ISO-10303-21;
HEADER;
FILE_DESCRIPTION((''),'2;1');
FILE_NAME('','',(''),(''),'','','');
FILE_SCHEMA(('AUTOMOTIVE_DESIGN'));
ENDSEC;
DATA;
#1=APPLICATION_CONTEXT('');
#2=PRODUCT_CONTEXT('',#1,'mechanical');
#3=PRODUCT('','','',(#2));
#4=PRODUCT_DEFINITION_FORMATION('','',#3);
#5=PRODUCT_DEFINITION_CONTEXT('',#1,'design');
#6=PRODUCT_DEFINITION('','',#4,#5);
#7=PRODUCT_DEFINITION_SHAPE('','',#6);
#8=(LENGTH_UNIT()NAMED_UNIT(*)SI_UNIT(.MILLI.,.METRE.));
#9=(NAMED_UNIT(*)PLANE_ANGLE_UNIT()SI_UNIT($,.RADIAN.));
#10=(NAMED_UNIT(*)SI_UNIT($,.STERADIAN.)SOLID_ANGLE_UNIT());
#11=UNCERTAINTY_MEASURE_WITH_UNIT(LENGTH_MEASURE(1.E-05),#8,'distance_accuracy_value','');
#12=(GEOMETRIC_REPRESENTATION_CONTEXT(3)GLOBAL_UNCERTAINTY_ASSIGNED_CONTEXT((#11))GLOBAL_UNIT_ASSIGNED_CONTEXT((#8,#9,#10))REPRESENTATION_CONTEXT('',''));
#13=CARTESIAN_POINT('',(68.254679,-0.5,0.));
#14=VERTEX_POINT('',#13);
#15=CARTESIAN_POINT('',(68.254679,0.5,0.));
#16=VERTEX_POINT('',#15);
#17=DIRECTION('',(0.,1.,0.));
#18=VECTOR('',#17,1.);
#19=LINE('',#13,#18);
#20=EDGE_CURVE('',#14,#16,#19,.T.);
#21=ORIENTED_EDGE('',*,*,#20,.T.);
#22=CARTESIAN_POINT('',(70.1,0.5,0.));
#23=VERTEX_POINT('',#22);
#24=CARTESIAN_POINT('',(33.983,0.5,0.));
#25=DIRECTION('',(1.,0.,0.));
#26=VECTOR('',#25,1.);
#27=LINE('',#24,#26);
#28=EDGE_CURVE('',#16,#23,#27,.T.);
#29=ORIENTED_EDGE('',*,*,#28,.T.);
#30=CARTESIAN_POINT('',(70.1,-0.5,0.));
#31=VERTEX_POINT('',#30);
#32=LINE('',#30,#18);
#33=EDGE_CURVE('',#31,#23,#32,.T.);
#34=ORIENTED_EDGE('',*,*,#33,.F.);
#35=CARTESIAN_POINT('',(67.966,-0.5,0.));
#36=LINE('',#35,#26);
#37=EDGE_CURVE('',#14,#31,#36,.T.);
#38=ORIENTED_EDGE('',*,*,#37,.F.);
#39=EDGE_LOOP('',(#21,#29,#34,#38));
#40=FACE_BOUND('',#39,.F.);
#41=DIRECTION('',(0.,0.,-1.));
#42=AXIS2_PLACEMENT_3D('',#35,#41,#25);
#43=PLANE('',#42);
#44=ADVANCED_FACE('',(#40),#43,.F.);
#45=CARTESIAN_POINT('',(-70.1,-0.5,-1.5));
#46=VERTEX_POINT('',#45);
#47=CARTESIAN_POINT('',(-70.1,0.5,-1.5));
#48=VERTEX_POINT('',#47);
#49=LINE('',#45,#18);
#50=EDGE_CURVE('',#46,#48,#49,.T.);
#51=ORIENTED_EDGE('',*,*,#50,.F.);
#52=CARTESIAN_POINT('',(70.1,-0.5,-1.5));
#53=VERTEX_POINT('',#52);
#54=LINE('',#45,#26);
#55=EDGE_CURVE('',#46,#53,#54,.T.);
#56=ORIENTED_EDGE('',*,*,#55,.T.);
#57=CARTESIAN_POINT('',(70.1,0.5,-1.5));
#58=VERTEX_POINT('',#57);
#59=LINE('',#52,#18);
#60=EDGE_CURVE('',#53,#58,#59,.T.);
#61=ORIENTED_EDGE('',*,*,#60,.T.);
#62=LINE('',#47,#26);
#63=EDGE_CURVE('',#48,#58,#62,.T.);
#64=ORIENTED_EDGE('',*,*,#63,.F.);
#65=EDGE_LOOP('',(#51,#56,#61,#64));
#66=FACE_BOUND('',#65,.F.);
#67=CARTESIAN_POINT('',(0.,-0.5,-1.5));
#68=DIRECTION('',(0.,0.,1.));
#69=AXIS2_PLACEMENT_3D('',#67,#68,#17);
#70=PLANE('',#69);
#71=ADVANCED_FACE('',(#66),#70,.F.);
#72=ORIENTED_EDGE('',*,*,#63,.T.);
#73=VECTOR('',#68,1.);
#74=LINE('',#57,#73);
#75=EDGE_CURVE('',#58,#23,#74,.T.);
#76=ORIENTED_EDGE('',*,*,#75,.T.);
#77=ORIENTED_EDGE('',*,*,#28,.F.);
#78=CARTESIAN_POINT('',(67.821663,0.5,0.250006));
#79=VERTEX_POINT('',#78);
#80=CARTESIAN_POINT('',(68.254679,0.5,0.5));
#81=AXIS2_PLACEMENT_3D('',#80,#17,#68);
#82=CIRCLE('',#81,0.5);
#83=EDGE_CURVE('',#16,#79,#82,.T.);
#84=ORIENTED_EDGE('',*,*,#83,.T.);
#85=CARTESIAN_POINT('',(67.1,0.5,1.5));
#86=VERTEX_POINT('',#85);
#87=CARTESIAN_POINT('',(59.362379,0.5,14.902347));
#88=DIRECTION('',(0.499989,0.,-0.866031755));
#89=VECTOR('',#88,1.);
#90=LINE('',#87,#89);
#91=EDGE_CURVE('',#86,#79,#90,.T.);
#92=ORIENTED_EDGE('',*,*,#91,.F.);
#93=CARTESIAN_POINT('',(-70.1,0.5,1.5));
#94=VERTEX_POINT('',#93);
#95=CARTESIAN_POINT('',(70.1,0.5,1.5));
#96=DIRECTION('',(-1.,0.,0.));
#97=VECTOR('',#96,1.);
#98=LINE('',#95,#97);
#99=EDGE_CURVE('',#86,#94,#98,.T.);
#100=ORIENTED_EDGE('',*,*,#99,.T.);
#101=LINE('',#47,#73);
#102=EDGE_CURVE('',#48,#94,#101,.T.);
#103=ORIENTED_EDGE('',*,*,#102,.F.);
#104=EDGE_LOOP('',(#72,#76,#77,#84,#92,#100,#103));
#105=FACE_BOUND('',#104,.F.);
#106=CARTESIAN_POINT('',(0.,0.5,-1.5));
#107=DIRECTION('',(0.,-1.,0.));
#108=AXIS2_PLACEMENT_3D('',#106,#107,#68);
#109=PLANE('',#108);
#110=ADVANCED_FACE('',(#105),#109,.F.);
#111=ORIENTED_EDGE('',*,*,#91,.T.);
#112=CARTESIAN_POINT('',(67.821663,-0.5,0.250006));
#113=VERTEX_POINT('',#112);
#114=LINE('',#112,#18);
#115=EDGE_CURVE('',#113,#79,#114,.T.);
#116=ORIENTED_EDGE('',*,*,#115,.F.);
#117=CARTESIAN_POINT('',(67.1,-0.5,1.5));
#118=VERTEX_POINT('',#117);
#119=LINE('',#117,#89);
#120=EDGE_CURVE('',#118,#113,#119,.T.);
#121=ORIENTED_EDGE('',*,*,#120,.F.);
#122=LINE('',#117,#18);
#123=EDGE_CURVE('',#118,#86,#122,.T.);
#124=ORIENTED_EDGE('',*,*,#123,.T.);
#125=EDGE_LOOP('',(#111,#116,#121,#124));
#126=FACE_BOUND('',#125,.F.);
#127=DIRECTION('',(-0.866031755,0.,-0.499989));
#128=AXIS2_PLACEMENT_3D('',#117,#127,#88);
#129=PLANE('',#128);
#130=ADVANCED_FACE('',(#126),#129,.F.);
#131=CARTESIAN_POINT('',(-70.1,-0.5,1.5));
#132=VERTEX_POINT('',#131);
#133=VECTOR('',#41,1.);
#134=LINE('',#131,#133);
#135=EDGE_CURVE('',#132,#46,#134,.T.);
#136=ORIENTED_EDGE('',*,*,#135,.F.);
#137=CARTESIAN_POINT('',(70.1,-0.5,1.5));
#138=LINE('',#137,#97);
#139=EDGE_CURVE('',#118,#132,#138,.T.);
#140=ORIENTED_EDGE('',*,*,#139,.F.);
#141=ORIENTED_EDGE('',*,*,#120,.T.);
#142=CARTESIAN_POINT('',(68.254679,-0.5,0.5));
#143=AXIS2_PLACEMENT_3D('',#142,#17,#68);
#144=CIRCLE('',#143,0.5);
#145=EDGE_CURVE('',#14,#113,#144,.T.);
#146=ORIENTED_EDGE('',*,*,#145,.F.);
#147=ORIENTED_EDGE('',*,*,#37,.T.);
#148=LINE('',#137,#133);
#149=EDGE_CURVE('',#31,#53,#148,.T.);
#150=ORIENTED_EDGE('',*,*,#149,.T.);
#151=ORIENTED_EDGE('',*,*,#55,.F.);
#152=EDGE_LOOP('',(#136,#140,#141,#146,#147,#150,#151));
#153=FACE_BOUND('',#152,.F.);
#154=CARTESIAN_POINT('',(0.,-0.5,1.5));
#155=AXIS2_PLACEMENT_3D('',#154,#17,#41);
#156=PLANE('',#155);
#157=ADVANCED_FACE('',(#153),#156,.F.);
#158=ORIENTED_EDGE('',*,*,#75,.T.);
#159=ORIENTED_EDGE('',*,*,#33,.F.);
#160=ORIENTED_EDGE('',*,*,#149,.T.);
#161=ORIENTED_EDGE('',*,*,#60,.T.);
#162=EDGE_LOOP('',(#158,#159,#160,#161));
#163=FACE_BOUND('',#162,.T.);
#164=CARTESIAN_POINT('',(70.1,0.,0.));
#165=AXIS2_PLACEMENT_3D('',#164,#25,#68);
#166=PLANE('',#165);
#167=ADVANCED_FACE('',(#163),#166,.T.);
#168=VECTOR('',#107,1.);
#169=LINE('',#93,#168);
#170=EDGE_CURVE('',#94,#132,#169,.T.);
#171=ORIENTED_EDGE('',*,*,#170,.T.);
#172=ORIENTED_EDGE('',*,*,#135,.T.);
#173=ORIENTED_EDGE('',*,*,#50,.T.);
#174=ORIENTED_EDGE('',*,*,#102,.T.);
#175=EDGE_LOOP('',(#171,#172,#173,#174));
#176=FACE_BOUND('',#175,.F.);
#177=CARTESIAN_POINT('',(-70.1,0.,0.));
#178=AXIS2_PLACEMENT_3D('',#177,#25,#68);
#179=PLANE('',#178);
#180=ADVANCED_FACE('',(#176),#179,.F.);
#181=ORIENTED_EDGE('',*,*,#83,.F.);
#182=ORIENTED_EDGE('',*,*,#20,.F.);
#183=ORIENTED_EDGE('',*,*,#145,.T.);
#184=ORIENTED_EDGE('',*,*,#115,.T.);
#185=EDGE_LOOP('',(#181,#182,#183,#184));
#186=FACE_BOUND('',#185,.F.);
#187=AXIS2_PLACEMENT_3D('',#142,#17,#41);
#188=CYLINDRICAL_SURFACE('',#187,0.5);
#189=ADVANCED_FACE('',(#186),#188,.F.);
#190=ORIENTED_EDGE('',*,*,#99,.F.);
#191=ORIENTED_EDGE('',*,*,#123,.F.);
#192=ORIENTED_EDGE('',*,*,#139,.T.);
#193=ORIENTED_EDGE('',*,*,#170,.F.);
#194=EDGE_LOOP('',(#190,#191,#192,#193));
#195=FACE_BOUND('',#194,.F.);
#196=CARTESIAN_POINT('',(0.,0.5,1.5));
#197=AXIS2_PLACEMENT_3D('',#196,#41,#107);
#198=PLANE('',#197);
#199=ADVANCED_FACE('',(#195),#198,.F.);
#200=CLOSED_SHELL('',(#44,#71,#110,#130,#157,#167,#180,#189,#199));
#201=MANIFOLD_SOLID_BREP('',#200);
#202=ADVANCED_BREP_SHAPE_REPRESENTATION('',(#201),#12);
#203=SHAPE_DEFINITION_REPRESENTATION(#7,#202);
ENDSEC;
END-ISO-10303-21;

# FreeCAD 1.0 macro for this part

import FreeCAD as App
import Part
import Sketcher

V = App.Vector
Q = App.Units.Quantity


def edges_at(feature, points):
    """Names of the edges that pass closest to the given points."""
    edges = feature.Shape.Edges
    near = lambda p: min(range(len(edges)), key=lambda i: edges[i].distToShape(Part.Vertex(*p))[0])
    return sorted({f"Edge{near(p) + 1}" for p in points})


def add_polygon(sketch, points):
    """Adds a closed chain of lines whose ends are joined by coincident constraints."""
    first, n = sketch.GeometryCount, len(points)
    for a, b in zip(points, points[1:] + points[:1]):
        sketch.addGeometry(Part.LineSegment(App.Vector(*a, 0), App.Vector(*b, 0)), False)
    for i in range(n):
        sketch.addConstraint(Sketcher.Constraint("Coincident", first + i, 2, first + (i + 1) % n, 1))

doc = App.newDocument("Part")
body = doc.addObject("PartDesign::Body", "Body")

# Sketch on YZ plane
sketch1 = body.newObject("Sketcher::SketchObject", "Sketch")
sketch1.AttachmentSupport = (doc.getObject("YZ_Plane"), [""])
sketch1.MapMode = "FlatFace"
add_polygon(sketch1, [(0.5, 1.5), (-0.5, 1.5), (-0.5, -1.5), (0.5, -1.5)])  # lines 0-3
sketch1.addConstraint([
    Sketcher.Constraint("Horizontal", 0),
    Sketcher.Constraint("Vertical", 1),
    Sketcher.Constraint("Horizontal", 2),
    Sketcher.Constraint("Vertical", 3),
    Sketcher.Constraint("Symmetric", 0, 2, 2, 2, -1, 1),
    Sketcher.Constraint("DistanceX", 0, 2, 0, 1, Q("1 mm")),
    Sketcher.Constraint("DistanceY", 1, 2, 1, 1, Q("3 mm")),
])
pad1 = body.newObject("PartDesign::Pad", "Pad")
pad1.Profile = sketch1
pad1.Length = 140.2
pad1.Midplane = True

# Sketch on XZ plane
sketch2 = body.newObject("Sketcher::SketchObject", "Sketch001")
sketch2.AttachmentSupport = (doc.getObject("XZ_Plane"), [""])
sketch2.MapMode = "FlatFace"
sketch2.AttachmentOffset = App.Placement(V(0, 0, 0.5), App.Rotation())
add_polygon(sketch2, [(67.1, 1.5), (68, 0), (70.1, 0), (70.1, 1.5)])  # lines 0-3
sketch2.addConstraint([
    Sketcher.Constraint("Horizontal", 1),
    Sketcher.Constraint("Vertical", 2),
    Sketcher.Constraint("Horizontal", 3),
    Sketcher.Constraint("PointOnObject", 0, 2, -1),
    Sketcher.Constraint("DistanceX", 3, 2, 3, 1, Q("3 mm")),
    Sketcher.Constraint("Angle", 0, Q("-60.0007 deg")),
    Sketcher.Constraint("DistanceY", 2, 1, 2, 2, Q("1.5 mm")),
    Sketcher.Constraint("DistanceX", -1, 1, 1, 2, Q("70.1 mm")),
])
pocket1 = body.newObject("PartDesign::Pocket", "Pocket")
pocket1.Profile = sketch2
pocket1.Length = 2.6684
doc.recompute()

fillet = body.newObject("PartDesign::Fillet", "Fillet")
fillet.Base = (pocket1, edges_at(pocket1, [(67.966, 0, 0)]))
fillet.Radius = 0.5

doc.recompute()
